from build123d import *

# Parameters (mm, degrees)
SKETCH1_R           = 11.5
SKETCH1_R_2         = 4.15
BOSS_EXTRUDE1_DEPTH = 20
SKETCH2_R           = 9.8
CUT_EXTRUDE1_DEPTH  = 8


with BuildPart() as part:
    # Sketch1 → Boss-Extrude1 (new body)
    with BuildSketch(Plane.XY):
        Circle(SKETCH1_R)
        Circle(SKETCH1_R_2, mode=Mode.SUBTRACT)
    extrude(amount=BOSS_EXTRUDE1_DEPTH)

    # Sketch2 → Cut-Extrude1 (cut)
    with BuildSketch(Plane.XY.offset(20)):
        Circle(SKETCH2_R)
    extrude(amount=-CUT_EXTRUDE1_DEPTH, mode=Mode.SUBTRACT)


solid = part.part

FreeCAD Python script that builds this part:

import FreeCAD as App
import Part
import Sketcher

V = App.Vector
Q = App.Units.Quantity

doc = App.newDocument("Part")
body = doc.addObject("PartDesign::Body", "Body")

# Sketch on XY plane
sketch1 = body.newObject("Sketcher::SketchObject", "Sketch")
sketch1.AttachmentSupport = (doc.getObject("XY_Plane"), [""])
sketch1.MapMode = "FlatFace"
sketch1.addGeometry(Part.Circle(V(0, 0, 0), V(0, 0, 1), 11.5), False)
sketch1.addGeometry(Part.Circle(V(0, 0, 0), V(0, 0, 1), 4.15), False)
sketch1.addConstraint(Sketcher.Constraint("Coincident", 0, 3, -1, 1))
sketch1.addConstraint(Sketcher.Constraint("Coincident", 1, 3, -1, 1))
sketch1.addConstraint(Sketcher.Constraint("Diameter", 0, Q("23 mm")))
sketch1.addConstraint(Sketcher.Constraint("Diameter", 1, Q("8.3 mm")))
pad1 = body.newObject("PartDesign::Pad", "Pad")
pad1.Profile = sketch1
pad1.Length = 20

# Sketch on XY plane
sketch2 = body.newObject("Sketcher::SketchObject", "Sketch001")
sketch2.AttachmentSupport = (doc.getObject("XY_Plane"), [""])
sketch2.MapMode = "FlatFace"
sketch2.AttachmentOffset = App.Placement(V(0, 0, 20), App.Rotation())
sketch2.addGeometry(Part.Circle(V(0, 0, 0), V(0, 0, 1), 9.8), False)
sketch2.addConstraint(Sketcher.Constraint("Coincident", 0, 3, -1, 1))
sketch2.addConstraint(Sketcher.Constraint("Diameter", 0, Q("19.6 mm")))
pocket1 = body.newObject("PartDesign::Pocket", "Pocket")
pocket1.Profile = sketch2
pocket1.Length = 8

doc.recompute()
